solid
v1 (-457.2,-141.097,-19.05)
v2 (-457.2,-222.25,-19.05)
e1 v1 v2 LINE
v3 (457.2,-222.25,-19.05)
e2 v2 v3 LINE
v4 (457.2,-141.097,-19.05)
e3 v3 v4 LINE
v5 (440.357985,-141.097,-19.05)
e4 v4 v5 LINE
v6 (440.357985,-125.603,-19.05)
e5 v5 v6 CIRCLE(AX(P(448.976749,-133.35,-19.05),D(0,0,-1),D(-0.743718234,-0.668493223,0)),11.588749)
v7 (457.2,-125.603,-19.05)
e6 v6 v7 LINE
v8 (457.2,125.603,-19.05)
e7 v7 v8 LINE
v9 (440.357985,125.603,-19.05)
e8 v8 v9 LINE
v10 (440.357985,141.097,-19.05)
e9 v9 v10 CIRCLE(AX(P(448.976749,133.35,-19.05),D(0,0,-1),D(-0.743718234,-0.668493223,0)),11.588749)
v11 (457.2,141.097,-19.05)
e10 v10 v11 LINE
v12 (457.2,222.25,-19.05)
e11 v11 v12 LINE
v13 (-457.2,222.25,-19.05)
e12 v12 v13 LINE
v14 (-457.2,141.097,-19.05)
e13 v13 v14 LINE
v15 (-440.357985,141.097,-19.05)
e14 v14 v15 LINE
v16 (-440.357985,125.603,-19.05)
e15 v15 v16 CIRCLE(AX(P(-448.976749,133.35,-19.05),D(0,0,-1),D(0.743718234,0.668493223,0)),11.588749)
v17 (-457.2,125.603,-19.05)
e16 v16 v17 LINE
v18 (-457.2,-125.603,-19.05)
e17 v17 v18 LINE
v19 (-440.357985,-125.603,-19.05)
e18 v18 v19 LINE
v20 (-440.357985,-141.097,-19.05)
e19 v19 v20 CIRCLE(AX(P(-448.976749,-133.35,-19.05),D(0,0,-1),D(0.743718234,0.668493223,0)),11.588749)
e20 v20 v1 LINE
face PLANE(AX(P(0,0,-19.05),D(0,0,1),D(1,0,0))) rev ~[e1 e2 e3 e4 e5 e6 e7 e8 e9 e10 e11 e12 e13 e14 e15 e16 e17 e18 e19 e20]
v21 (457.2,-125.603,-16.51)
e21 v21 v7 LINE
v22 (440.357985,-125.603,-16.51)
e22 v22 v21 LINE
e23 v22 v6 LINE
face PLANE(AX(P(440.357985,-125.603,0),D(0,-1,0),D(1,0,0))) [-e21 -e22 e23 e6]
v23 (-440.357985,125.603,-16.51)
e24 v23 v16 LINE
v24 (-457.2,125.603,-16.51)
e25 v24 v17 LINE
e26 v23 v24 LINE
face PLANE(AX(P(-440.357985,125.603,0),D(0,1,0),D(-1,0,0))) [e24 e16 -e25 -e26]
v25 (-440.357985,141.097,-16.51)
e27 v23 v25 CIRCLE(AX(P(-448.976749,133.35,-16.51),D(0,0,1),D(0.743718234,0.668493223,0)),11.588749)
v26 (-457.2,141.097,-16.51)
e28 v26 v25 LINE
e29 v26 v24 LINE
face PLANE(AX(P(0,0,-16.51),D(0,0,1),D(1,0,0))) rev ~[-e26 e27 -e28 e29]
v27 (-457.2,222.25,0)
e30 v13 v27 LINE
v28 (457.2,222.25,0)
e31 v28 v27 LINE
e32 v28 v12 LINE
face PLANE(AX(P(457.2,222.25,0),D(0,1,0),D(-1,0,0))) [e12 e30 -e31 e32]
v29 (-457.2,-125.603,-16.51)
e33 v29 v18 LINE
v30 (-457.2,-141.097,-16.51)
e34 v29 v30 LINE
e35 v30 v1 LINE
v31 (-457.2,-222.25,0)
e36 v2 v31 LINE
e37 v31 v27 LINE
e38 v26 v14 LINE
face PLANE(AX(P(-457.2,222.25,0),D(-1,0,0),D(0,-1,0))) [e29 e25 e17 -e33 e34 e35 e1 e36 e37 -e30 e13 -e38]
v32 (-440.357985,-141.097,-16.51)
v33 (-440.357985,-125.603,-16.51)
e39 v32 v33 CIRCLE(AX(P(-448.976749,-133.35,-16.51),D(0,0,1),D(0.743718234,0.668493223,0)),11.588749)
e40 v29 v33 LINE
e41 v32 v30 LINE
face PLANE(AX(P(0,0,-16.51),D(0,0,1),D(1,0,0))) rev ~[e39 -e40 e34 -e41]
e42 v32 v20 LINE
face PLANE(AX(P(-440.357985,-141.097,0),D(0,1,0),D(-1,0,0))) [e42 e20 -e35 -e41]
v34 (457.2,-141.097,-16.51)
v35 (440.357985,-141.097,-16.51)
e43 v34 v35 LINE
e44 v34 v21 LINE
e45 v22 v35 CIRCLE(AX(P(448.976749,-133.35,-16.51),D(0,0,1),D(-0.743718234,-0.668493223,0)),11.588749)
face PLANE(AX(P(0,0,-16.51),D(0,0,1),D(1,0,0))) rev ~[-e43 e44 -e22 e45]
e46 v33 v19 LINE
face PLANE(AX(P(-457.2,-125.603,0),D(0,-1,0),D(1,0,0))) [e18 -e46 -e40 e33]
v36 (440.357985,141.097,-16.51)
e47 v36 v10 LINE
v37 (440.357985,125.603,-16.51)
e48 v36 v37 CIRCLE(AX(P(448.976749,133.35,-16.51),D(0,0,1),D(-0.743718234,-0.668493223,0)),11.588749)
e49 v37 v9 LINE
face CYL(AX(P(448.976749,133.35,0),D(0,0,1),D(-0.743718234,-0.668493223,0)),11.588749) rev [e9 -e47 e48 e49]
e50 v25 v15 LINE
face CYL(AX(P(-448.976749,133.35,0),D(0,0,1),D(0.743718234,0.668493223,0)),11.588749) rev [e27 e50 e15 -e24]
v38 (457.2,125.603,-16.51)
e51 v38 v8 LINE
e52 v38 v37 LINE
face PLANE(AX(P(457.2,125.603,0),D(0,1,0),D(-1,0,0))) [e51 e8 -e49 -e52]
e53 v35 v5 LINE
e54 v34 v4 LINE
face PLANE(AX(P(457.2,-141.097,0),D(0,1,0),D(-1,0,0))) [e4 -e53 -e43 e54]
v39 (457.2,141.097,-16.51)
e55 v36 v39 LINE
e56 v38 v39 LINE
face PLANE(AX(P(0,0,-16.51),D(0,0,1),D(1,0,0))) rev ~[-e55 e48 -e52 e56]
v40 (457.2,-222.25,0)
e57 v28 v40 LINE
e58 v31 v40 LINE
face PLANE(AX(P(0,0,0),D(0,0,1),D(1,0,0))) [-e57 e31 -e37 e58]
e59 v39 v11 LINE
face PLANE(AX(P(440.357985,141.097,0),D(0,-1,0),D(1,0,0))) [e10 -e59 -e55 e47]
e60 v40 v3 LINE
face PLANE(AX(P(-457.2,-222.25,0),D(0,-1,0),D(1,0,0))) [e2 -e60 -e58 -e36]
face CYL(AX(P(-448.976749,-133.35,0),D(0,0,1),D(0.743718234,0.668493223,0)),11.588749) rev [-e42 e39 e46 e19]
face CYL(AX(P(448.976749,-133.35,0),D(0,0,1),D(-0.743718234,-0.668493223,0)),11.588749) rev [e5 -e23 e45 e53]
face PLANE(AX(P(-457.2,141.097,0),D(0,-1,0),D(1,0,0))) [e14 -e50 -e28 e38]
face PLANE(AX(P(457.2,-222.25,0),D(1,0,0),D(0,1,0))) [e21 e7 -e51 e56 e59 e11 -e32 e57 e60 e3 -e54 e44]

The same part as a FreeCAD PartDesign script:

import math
import FreeCAD as App
import Part
import Sketcher
from FreeCAD import Vector
Q = App.Units.Quantity


def add_polygon(sketch, points):
    """Adds a closed chain of lines whose ends are joined by coincident constraints."""
    first, n = sketch.GeometryCount, len(points)
    for a, b in zip(points, points[1:] + points[:1]):
        sketch.addGeometry(Part.LineSegment(App.Vector(*a, 0), App.Vector(*b, 0)), False)
    for i in range(n):
        sketch.addConstraint(Sketcher.Constraint("Coincident", first + i, 2, first + (i + 1) % n, 1))

doc = App.newDocument("Part")
params = doc.addObject("Spreadsheet::Sheet", "Params")
for row, (alias, value) in enumerate([
    ("sketch1_width", "36 in"),
    ("sketch1_height", "17.5 in"),
    ("pad1_length", "0.65 in"),
    ("sketch2_width", "36 in"),
    ("sketch2_height", "9.89 in"),
    ("pad2_length", "0.75 in"),
], start=1):
    params.set(f"A{row}", alias)
    params.set(f"B{row}", "=" + value)
    params.setAlias(f"B{row}", alias)

body = doc.addObject("PartDesign::Body", "Body")

# Sketch on XY plane
sketch1 = doc.addObject("Sketcher::SketchObject", "Sketch")
body.addObject(sketch1)
sketch1.AttachmentSupport = (doc.XY_Plane, [""])
sketch1.MapMode = "FlatFace"
add_polygon(sketch1, [(457.2, 222.25), (-457.2, 222.25), (-457.2, -222.25), (457.2, -222.25)])  # lines 0-3
sketch1.addConstraint([
    Sketcher.Constraint("Horizontal", 0),
    Sketcher.Constraint("Vertical", 1),
    Sketcher.Constraint("Horizontal", 2),
    Sketcher.Constraint("Vertical", 3),
    Sketcher.Constraint("Symmetric", 0, 2, 2, 2, -1, 1),
    Sketcher.Constraint("DistanceX", 0, 2, 0, 1, Q("36 in")),
    Sketcher.Constraint("DistanceY", 1, 2, 1, 1, Q("17.5 in")),
])
sketch1.setExpression("Constraints[9]", "Params.sketch1_width")
sketch1.setExpression("Constraints[10]", "Params.sketch1_height")
pad1 = doc.addObject("PartDesign::Pad", "Pad")
body.addObject(pad1)
pad1.Profile = sketch1
pad1.setExpression("Length", "Params.pad1_length")
pad1.Reversed = True

# Sketch on XY plane
sketch2 = doc.addObject("Sketcher::SketchObject", "Sketch001")
body.addObject(sketch2)
sketch2.AttachmentSupport = (doc.XY_Plane, [""])
sketch2.MapMode = "FlatFace"
sketch2.addGeometry([
    Part.LineSegment(Vector(457.2, 141.097, 0), Vector(457.2, 222.25, 0)),  # 0
    Part.LineSegment(Vector(457.2, 222.25, 0), Vector(-457.2, 222.25, 0)),  # 1
    Part.LineSegment(Vector(-457.2, 222.25, 0), Vector(-457.2, 141.097, 0)),  # 2
    Part.LineSegment(Vector(-457.2, 141.097, 0), Vector(-440.357985, 141.097, 0)),  # 3
    Part.ArcOfCircle(Part.Circle(Vector(-448.976749, 133.35, 0), Vector(0, 0, 1), 11.588749), math.radians(-41.950877), math.radians(41.950877)),  # 4
    Part.LineSegment(Vector(-440.357985, 125.603, 0), Vector(-457.2, 125.603, 0)),  # 5
    Part.LineSegment(Vector(-457.2, 125.603, 0), Vector(-457.2, -125.603, 0)),  # 6
    Part.LineSegment(Vector(-457.2, -125.603, 0), Vector(-440.357985, -125.603, 0)),  # 7
    Part.ArcOfCircle(Part.Circle(Vector(-448.976749, -133.35, 0), Vector(0, 0, 1), 11.588749), math.radians(-41.950877), math.radians(41.950877)),  # 8
    Part.LineSegment(Vector(-440.357985, -141.097, 0), Vector(-457.2, -141.097, 0)),  # 9
    Part.LineSegment(Vector(-457.2, -141.097, 0), Vector(-457.2, -222.25, 0)),  # 10
    Part.LineSegment(Vector(-457.2, -222.25, 0), Vector(457.2, -222.25, 0)),  # 11
    Part.LineSegment(Vector(457.2, -222.25, 0), Vector(457.2, -141.097, 0)),  # 12
    Part.LineSegment(Vector(457.2, -141.097, 0), Vector(440.357985, -141.097, 0)),  # 13
    Part.ArcOfCircle(Part.Circle(Vector(448.976749, -133.35, 0), Vector(0, 0, 1), 11.588749), math.radians(138.049123), math.radians(221.950877)),  # 14
    Part.LineSegment(Vector(440.357985, -125.603, 0), Vector(457.2, -125.603, 0)),  # 15
    Part.LineSegment(Vector(457.2, -125.603, 0), Vector(457.2, 125.603, 0)),  # 16
    Part.LineSegment(Vector(457.2, 125.603, 0), Vector(440.357985, 125.603, 0)),  # 17
    Part.ArcOfCircle(Part.Circle(Vector(448.976749, 133.35, 0), Vector(0, 0, 1), 11.588749), math.radians(138.049123), math.radians(221.950877)),  # 18
    Part.LineSegment(Vector(440.357985, 141.097, 0), Vector(457.2, 141.097, 0)),  # 19
], False)
sketch2.addConstraint([
    Sketcher.Constraint("Coincident", 0, 2, 1, 1),
    Sketcher.Constraint("Coincident", 1, 2, 2, 1),
    Sketcher.Constraint("Coincident", 2, 2, 3, 1),
    Sketcher.Constraint("Coincident", 3, 2, 4, 2),
    Sketcher.Constraint("Coincident", 4, 1, 5, 1),
    Sketcher.Constraint("Coincident", 5, 2, 6, 1),
    Sketcher.Constraint("Coincident", 6, 2, 7, 1),
    Sketcher.Constraint("Coincident", 7, 2, 8, 2),
    Sketcher.Constraint("Coincident", 8, 1, 9, 1),
    Sketcher.Constraint("Coincident", 9, 2, 10, 1),
    Sketcher.Constraint("Coincident", 10, 2, 11, 1),
    Sketcher.Constraint("Coincident", 11, 2, 12, 1),
    Sketcher.Constraint("Coincident", 12, 2, 13, 1),
    Sketcher.Constraint("Coincident", 13, 2, 14, 2),
    Sketcher.Constraint("Coincident", 14, 1, 15, 1),
    Sketcher.Constraint("Coincident", 15, 2, 16, 1),
    Sketcher.Constraint("Coincident", 16, 2, 17, 1),
    Sketcher.Constraint("Coincident", 17, 2, 18, 2),
    Sketcher.Constraint("Coincident", 18, 1, 19, 1),
    Sketcher.Constraint("Coincident", 19, 2, 0, 1),
    Sketcher.Constraint("Vertical", 0),
    Sketcher.Constraint("Horizontal", 1),
    Sketcher.Constraint("Vertical", 2),
    Sketcher.Constraint("Horizontal", 3),
    Sketcher.Constraint("Horizontal", 5),
    Sketcher.Constraint("Vertical", 6),
    Sketcher.Constraint("Horizontal", 7),
    Sketcher.Constraint("Horizontal", 9),
    Sketcher.Constraint("Vertical", 10),
    Sketcher.Constraint("Horizontal", 11),
    Sketcher.Constraint("Vertical", 12),
    Sketcher.Constraint("Horizontal", 13),
    Sketcher.Constraint("Horizontal", 15),
    Sketcher.Constraint("Vertical", 16),
    Sketcher.Constraint("Horizontal", 17),
    Sketcher.Constraint("Horizontal", 19),
    Sketcher.Constraint("Equal", 4, 8),
    Sketcher.Constraint("Equal", 8, 14),
    Sketcher.Constraint("Equal", 14, 18),
    Sketcher.Constraint("Symmetric", 4, 3, 14, 3, -1, 1),
    Sketcher.Constraint("Symmetric", 8, 3, 18, 3, -1, 1),
    Sketcher.Constraint("Symmetric", 0, 2, 10, 2, -1, 1),
    Sketcher.Constraint("Symmetric", 2, 2, 12, 2, -1, 1),
    Sketcher.Constraint("Symmetric", 5, 2, 15, 2, -1, 1),
    Sketcher.Constraint("Symmetric", 8, 3, 14, 3, -2),
    Sketcher.Constraint("Symmetric", 9, 2, 12, 2, -2),
    Sketcher.Constraint("Horizontal", 7, 2, 14, 1),
    Sketcher.Constraint("Horizontal", 5, 2, 16, 2),
    Sketcher.Constraint("Horizontal", 3, 2, 18, 1),
    Sketcher.Constraint("Vertical", 3, 2, 4, 1),
    Sketcher.Constraint("Vertical", 2, 2, 5, 2),
    Sketcher.Constraint("DistanceX", 1, 2, 1, 1, Q("36 in")),
    Sketcher.Constraint("DistanceY", 14, 3, 0, 2, Q("14 in")),
    Sketcher.Constraint("DistanceY", 6, 2, 6, 1, Q("9.89 in")),
    Sketcher.Constraint("DistanceY", 8, 3, 4, 3, Q("10.5 in")),
    Sketcher.Constraint("Radius", 4, Q("11.588749 mm")),
    Sketcher.Constraint("DistanceX", 8, 3, 14, 3, Q("35.3524999 in")),
])
sketch2.setExpression("Constraints[51]", "Params.sketch2_width")
sketch2.setExpression("Constraints[53]", "Params.sketch2_height")
pad2 = doc.addObject("PartDesign::Pad", "Pad001")
body.addObject(pad2)
pad2.Profile = sketch2
pad2.setExpression("Length", "Params.pad2_length")
pad2.Reversed = True

doc.recompute()
